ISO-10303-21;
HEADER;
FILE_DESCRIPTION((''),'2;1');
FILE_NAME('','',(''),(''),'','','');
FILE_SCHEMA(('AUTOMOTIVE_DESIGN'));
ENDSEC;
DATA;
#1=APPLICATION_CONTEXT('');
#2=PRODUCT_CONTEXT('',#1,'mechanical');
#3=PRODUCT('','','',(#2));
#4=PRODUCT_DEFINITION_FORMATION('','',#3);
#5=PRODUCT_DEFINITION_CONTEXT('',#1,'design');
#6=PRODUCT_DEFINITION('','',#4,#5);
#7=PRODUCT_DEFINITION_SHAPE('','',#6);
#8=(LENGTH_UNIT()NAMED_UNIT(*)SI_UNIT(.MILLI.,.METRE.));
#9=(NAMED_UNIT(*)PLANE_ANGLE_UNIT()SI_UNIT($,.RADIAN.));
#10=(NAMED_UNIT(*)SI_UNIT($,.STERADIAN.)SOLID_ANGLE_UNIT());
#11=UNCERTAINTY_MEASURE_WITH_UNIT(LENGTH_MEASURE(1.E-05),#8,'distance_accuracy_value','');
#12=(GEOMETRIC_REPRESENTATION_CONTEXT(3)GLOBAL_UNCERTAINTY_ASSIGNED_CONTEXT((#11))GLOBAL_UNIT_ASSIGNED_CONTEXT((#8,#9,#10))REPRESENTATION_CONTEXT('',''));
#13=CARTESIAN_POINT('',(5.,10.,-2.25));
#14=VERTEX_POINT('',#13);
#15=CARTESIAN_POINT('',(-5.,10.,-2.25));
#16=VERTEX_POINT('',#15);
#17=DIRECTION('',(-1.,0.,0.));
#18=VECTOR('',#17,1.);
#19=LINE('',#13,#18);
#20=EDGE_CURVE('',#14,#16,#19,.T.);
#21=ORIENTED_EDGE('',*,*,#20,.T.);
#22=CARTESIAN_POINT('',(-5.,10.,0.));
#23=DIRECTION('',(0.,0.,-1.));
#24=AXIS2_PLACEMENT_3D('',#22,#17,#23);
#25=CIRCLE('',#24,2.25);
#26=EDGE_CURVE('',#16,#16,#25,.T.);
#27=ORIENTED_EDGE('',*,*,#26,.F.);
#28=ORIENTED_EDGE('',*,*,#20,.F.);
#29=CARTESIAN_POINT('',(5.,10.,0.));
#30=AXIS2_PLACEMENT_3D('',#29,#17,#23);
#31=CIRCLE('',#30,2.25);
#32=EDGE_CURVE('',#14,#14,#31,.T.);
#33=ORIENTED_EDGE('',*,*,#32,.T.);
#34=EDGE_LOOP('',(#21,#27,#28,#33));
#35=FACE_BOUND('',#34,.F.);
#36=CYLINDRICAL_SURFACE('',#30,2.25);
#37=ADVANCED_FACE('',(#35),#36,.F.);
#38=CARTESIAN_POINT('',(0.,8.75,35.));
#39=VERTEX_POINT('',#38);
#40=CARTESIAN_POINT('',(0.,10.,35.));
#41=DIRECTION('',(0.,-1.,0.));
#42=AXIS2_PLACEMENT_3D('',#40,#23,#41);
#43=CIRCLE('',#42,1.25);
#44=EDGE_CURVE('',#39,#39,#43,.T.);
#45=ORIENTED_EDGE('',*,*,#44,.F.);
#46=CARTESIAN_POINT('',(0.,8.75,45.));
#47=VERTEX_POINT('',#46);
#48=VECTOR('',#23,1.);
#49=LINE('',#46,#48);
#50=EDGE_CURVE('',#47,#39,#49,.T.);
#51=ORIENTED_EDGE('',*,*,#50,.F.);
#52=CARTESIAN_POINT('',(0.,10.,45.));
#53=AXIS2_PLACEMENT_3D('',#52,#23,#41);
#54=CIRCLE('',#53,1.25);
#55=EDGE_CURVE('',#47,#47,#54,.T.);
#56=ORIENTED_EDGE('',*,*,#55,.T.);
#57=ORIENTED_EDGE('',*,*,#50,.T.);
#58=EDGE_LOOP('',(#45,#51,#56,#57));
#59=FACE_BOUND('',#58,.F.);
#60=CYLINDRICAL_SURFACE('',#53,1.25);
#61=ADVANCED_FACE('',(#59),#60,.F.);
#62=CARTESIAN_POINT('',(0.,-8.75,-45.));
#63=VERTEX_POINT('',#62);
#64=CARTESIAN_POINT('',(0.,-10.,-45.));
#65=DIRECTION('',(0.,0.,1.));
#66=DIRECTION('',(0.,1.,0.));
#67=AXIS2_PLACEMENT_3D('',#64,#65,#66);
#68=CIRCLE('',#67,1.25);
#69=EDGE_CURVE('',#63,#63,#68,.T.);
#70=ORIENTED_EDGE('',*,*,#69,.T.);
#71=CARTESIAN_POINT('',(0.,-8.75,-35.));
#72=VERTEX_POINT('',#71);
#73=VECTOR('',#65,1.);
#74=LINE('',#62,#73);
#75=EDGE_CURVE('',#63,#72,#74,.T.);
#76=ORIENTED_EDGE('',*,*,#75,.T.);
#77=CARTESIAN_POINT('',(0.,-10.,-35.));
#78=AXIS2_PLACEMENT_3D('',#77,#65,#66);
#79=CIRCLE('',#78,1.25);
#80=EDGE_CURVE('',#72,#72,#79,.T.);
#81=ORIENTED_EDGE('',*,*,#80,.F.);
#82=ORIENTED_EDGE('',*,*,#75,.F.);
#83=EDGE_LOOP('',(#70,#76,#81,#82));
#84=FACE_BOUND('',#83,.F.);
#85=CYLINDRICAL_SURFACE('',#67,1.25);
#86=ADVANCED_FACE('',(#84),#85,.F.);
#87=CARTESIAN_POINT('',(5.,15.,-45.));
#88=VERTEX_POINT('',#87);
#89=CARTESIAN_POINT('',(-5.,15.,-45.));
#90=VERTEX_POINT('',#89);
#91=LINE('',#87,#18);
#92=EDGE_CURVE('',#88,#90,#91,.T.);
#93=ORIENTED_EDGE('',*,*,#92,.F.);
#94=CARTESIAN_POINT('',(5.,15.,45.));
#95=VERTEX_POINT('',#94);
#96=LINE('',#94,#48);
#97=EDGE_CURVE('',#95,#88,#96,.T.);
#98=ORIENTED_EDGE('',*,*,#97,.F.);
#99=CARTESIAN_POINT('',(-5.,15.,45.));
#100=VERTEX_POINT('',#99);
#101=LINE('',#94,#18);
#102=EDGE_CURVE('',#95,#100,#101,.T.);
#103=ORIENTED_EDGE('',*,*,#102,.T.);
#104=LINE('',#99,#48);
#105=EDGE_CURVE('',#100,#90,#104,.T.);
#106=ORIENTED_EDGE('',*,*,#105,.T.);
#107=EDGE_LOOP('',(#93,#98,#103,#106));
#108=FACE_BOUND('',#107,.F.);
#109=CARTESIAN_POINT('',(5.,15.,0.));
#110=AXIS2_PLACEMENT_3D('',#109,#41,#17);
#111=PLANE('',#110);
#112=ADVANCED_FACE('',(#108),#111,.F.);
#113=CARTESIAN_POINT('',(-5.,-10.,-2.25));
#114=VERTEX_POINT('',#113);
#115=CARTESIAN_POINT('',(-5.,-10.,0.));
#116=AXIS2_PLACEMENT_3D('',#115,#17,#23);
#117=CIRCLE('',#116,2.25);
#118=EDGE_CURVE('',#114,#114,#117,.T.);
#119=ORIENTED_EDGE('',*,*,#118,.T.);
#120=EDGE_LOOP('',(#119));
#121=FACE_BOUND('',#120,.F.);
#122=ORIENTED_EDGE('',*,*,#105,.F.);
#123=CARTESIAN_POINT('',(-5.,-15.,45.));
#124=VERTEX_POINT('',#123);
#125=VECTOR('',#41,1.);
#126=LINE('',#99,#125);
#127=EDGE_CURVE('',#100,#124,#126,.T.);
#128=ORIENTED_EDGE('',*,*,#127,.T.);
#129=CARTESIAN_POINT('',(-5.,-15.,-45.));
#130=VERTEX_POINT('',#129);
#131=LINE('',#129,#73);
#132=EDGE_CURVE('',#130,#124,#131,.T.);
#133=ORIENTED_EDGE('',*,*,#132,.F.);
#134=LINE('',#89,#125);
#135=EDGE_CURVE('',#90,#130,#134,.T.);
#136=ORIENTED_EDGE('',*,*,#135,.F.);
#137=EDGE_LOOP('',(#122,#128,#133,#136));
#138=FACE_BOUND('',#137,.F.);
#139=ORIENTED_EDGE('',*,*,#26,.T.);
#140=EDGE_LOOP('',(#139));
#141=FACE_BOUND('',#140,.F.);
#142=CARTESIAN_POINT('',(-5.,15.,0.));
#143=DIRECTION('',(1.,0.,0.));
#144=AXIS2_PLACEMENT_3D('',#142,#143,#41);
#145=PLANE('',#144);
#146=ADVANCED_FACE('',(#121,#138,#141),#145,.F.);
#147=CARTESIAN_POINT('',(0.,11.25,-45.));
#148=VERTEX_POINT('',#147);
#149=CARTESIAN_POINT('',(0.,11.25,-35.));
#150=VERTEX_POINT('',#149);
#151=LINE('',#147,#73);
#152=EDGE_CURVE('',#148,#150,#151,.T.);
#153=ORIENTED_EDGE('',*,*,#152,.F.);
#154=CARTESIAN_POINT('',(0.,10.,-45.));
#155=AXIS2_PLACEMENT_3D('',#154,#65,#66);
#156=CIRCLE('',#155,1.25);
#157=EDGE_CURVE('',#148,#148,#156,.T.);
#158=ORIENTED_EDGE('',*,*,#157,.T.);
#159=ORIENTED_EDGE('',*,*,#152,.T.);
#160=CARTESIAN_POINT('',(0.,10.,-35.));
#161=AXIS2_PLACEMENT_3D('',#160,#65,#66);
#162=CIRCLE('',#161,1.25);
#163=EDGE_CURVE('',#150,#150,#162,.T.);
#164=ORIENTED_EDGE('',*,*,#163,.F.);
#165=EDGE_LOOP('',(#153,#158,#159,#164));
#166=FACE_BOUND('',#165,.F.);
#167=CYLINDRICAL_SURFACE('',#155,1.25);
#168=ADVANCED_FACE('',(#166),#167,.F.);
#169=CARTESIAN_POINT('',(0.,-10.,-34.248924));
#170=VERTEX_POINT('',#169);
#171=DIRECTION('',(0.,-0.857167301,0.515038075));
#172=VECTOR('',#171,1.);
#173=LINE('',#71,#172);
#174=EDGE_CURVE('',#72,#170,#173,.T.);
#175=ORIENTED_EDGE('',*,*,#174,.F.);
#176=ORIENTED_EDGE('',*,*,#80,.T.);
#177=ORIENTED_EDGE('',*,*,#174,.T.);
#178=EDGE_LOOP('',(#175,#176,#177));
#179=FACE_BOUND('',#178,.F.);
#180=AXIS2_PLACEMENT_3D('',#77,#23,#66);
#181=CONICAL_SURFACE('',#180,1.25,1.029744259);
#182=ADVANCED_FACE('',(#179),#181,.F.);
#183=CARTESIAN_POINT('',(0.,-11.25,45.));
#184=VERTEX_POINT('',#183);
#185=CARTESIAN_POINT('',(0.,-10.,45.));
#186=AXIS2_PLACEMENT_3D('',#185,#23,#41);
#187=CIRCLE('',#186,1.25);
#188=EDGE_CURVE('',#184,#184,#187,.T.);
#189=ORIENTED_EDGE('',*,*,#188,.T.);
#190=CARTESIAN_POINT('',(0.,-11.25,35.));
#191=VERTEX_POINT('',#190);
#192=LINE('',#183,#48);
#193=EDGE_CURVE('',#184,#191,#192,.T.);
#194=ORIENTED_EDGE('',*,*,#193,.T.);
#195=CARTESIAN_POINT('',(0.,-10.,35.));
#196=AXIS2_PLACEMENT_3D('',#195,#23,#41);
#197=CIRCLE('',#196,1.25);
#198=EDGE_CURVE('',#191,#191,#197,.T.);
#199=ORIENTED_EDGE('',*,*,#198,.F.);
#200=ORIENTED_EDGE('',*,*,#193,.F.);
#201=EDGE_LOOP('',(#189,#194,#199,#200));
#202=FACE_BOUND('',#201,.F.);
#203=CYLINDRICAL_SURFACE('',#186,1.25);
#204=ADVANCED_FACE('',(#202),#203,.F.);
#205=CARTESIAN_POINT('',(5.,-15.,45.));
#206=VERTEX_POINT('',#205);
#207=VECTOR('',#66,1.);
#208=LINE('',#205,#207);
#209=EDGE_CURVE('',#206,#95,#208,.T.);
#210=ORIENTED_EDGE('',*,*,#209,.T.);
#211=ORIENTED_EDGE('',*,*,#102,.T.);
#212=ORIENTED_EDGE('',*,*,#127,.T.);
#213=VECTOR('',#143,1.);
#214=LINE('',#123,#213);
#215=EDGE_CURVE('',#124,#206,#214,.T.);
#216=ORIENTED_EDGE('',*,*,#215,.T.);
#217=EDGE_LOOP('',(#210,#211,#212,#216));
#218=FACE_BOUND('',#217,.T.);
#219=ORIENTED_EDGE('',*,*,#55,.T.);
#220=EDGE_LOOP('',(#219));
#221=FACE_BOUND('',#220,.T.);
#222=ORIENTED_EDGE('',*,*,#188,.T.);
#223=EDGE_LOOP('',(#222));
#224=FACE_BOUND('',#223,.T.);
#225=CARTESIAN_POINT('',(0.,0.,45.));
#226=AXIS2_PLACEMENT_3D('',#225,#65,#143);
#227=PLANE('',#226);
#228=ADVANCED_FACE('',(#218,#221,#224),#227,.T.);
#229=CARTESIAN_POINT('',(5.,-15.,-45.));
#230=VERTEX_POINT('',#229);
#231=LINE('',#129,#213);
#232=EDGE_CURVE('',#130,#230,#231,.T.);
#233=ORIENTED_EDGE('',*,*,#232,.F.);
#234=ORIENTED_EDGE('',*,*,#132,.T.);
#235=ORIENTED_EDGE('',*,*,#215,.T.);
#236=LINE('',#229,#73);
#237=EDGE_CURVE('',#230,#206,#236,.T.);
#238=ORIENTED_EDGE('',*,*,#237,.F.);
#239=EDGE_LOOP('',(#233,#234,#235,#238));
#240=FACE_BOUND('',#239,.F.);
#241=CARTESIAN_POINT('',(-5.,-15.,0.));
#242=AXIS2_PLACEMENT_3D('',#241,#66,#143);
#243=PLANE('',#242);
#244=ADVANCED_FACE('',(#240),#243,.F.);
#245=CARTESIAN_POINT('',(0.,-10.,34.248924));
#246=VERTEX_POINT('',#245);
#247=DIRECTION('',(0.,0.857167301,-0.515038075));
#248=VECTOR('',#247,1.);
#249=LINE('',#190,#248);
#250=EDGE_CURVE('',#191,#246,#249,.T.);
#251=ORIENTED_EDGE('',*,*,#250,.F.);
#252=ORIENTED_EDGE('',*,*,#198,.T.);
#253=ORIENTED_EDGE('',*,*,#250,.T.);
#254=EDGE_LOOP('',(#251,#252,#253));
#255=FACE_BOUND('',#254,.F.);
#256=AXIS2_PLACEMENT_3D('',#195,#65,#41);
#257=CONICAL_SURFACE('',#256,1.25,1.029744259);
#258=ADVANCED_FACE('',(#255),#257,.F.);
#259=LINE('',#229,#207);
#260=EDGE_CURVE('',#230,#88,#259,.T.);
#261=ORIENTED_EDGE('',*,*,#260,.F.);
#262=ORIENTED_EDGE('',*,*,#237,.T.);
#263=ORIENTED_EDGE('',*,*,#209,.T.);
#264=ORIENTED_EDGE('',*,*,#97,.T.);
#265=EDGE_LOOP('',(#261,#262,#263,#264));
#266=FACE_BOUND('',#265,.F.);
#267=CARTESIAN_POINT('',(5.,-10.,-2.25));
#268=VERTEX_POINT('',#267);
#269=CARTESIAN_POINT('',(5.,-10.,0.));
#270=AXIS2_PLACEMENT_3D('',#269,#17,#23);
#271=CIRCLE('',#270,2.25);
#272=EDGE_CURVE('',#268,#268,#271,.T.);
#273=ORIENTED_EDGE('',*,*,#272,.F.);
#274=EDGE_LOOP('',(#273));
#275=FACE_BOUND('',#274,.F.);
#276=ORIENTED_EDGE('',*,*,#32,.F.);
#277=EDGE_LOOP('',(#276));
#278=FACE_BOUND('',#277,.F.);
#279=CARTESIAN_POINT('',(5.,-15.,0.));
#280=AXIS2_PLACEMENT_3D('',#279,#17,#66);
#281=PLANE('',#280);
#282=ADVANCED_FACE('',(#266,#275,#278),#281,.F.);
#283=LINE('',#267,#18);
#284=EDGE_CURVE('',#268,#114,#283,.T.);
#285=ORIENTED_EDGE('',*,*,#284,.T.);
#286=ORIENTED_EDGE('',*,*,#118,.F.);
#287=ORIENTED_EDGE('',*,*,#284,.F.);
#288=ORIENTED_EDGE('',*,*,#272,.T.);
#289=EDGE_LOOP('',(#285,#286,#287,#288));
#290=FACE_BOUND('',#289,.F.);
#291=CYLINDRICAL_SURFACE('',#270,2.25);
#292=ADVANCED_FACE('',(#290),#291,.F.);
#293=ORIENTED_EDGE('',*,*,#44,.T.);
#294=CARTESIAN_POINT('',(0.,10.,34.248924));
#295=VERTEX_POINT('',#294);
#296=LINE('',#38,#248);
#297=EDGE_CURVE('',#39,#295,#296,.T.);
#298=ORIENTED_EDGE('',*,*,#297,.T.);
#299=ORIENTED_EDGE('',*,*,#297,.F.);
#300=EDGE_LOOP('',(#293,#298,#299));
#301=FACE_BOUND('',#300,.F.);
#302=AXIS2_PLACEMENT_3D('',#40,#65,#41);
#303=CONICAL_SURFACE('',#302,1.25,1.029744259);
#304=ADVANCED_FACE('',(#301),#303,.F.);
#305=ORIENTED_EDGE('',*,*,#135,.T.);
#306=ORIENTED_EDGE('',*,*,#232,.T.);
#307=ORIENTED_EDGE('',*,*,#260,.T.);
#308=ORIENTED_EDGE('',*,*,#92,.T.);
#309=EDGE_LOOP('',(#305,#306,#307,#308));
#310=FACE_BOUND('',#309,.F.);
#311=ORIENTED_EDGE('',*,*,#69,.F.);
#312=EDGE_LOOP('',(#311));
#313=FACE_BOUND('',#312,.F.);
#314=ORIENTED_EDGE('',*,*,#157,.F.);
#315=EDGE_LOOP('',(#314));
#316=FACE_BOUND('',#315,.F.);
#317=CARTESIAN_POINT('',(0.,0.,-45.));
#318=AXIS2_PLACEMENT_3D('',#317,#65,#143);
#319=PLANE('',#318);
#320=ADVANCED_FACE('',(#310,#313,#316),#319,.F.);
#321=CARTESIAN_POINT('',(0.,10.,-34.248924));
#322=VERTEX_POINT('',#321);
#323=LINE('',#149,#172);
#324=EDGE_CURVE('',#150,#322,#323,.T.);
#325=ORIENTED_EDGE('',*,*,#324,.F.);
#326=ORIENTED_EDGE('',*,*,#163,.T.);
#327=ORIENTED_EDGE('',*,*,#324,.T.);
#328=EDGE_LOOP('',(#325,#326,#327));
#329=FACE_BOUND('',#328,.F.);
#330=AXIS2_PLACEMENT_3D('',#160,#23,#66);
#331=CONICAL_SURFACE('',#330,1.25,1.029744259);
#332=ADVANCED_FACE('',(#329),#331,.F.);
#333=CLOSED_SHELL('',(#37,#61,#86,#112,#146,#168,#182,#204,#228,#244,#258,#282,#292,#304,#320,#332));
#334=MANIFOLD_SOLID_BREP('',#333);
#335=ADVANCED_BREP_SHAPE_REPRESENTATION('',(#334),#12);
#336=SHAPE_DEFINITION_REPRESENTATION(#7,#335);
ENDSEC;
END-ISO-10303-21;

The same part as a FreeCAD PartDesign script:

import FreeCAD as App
import Part
import Sketcher
from FreeCAD import Vector


def add_polygon(sketch, points):
    """Adds a closed chain of lines whose ends are joined by coincident constraints."""
    first, n = sketch.GeometryCount, len(points)
    for a, b in zip(points, points[1:] + points[:1]):
        sketch.addGeometry(Part.LineSegment(App.Vector(*a, 0), App.Vector(*b, 0)), False)
    for i in range(n):
        sketch.addConstraint(Sketcher.Constraint("Coincident", first + i, 2, first + (i + 1) % n, 1))

doc = App.newDocument("Part")
body = doc.addObject("PartDesign::Body", "Body")

# Sketch on XY plane
sketch1 = body.newObject("Sketcher::SketchObject", "Sketch")
sketch1.AttachmentSupport = (doc.getObject("XY_Plane"), [""])
sketch1.MapMode = "FlatFace"
add_polygon(sketch1, [(-5, 15), (-5, -15), (5, -15), (5, 15)])  # lines 0-3
sketch1.addConstraint(Sketcher.Constraint("Vertical", 0))
sketch1.addConstraint(Sketcher.Constraint("Horizontal", 1))
sketch1.addConstraint(Sketcher.Constraint("Vertical", 2))
sketch1.addConstraint(Sketcher.Constraint("Horizontal", 3))
sketch1.addConstraint(Sketcher.Constraint("Symmetric", 0, 2, 2, 2, -1, 1))
sketch1.addConstraint(Sketcher.Constraint("DistanceX", 1, 1, 1, 2, 10.0))
sketch1.addConstraint(Sketcher.Constraint("DistanceY", 0, 2, 0, 1, 30.0))
pad1 = body.newObject("PartDesign::Pad", "Pad")
pad1.Profile = sketch1
pad1.Length = 90
pad1.Midplane = True

# Sketch on XY plane
sketch2 = body.newObject("Sketcher::SketchObject", "Sketch001")
sketch2.AttachmentSupport = (doc.getObject("XY_Plane"), [""])
sketch2.MapMode = "FlatFace"
sketch2.AttachmentOffset = App.Placement(Vector(0, 0, 45), App.Rotation())
sketch2.addGeometry(Part.Circle(Vector(0, 10, 0), Vector(0, 0, 1), 1.2), False)
sketch2.addGeometry(Part.Circle(Vector(0, -10, 0), Vector(0, 0, 1), 1.2), False)
sketch2.addConstraint(Sketcher.Constraint("Equal", 0, 1))
sketch2.addConstraint(Sketcher.Constraint("Symmetric", 0, 3, 1, 3, -1, 1))
sketch2.addConstraint(Sketcher.Constraint("PointOnObject", 0, 3, -2))
sketch2.addConstraint(Sketcher.Constraint("Diameter", 0, 2.5))
sketch2.addConstraint(Sketcher.Constraint("DistanceY", -1, 1, 0, 3, 10.0))
doc.recompute()
hole = body.newObject("PartDesign::Hole", "Hole")
hole.Profile = sketch2
hole.ThreadType = "None"
hole.Diameter = 2.5
hole.DepthType = "Dimension"
hole.Depth = 10
hole.DrillPoint = "Angled"
hole.DrillPointAngle = 118

# Sketch on XY plane
sketch3 = body.newObject("Sketcher::SketchObject", "Sketch002")
sketch3.AttachmentSupport = (doc.getObject("XY_Plane"), [""])
sketch3.MapMode = "FlatFace"
sketch3.AttachmentOffset = App.Placement(Vector(0, 0, -45), App.Rotation())
sketch3.addGeometry(Part.Circle(Vector(0, 10, 0), Vector(0, 0, 1), 1.2), False)
sketch3.addGeometry(Part.Circle(Vector(0, -10, 0), Vector(0, 0, 1), 1.2), False)
sketch3.addConstraint(Sketcher.Constraint("Equal", 0, 1))
sketch3.addConstraint(Sketcher.Constraint("Symmetric", 0, 3, 1, 3, -1, 1))
sketch3.addConstraint(Sketcher.Constraint("PointOnObject", 0, 3, -2))
sketch3.addConstraint(Sketcher.Constraint("Diameter", 0, 2.5))
sketch3.addConstraint(Sketcher.Constraint("DistanceY", -1, 1, 0, 3, 10.0))
doc.recompute()
hole2 = body.newObject("PartDesign::Hole", "Hole001")
hole2.Profile = sketch3
hole2.ThreadType = "None"
hole2.Diameter = 2.5
hole2.DepthType = "Dimension"
hole2.Depth = 10
hole2.DrillPoint = "Angled"
hole2.DrillPointAngle = 118
hole2.Reversed = True

# Sketch on YZ plane
sketch4 = body.newObject("Sketcher::SketchObject", "Sketch003")
sketch4.AttachmentSupport = (doc.getObject("YZ_Plane"), [""])
sketch4.MapMode = "FlatFace"
sketch4.AttachmentOffset = App.Placement(Vector(0, 0, 5), App.Rotation())
sketch4.addGeometry(Part.Circle(Vector(10, 0, 0), Vector(0, 0, 1), 2.2), False)
sketch4.addGeometry(Part.Circle(Vector(-10, 0, 0), Vector(0, 0, 1), 2.2), False)
sketch4.addConstraint(Sketcher.Constraint("Equal", 0, 1))
sketch4.addConstraint(Sketcher.Constraint("Symmetric", 0, 3, 1, 3, -1, 1))
sketch4.addConstraint(Sketcher.Constraint("PointOnObject", 0, 3, -1))
sketch4.addConstraint(Sketcher.Constraint("Diameter", 0, 4.5))
sketch4.addConstraint(Sketcher.Constraint("DistanceX", -1, 1, 0, 3, 10.0))
doc.recompute()
hole3 = body.newObject("PartDesign::Hole", "Hole002")
hole3.Profile = sketch4
hole3.ThreadType = "None"
hole3.Diameter = 4.5
hole3.DepthType = "ThroughAll"

doc.recompute()
